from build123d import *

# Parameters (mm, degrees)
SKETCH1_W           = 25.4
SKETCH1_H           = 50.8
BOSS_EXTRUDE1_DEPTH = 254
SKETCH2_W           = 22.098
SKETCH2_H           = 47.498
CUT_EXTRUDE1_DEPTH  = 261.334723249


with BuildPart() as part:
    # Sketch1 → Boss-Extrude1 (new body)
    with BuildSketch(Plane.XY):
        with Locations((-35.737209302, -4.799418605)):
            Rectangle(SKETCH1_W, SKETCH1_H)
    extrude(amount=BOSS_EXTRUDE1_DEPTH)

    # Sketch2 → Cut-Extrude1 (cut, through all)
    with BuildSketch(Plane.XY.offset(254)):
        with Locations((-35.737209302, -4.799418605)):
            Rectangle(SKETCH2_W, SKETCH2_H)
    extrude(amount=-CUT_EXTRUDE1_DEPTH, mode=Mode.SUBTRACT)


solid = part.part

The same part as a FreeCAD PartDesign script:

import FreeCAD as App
import Part
import Sketcher
from FreeCAD import Vector
Q = App.Units.Quantity


def add_polygon(sketch, points):
    """Adds a closed chain of lines whose ends are joined by coincident constraints."""
    first, n = sketch.GeometryCount, len(points)
    for a, b in zip(points, points[1:] + points[:1]):
        sketch.addGeometry(Part.LineSegment(App.Vector(*a, 0), App.Vector(*b, 0)), False)
    for i in range(n):
        sketch.addConstraint(Sketcher.Constraint("Coincident", first + i, 2, first + (i + 1) % n, 1))

doc = App.newDocument("Part")
body = doc.addObject("PartDesign::Body", "Body")

# Sketch on XY plane
sketch1 = doc.addObject("Sketcher::SketchObject", "Sketch")
body.addObject(sketch1)
sketch1.AttachmentSupport = (doc.XY_Plane, [""])
sketch1.MapMode = "FlatFace"
add_polygon(sketch1, [(-48, 21), (-48, -30), (-23, -30), (-23, 21)])  # lines 0-3
sketch1.addConstraint([
    Sketcher.Constraint("Vertical", 0),
    Sketcher.Constraint("Horizontal", 1),
    Sketcher.Constraint("Vertical", 2),
    Sketcher.Constraint("Horizontal", 3),
    Sketcher.Constraint("DistanceX", 1, 1, 1, 2, Q("1 in")),
    Sketcher.Constraint("DistanceY", 0, 2, 0, 1, Q("2 in")),
    Sketcher.Constraint("DistanceX", 0, 2, -1, 1, 48.437209),
    Sketcher.Constraint("DistanceY", 0, 2, -1, 1, 30.199419),
])
pad1 = doc.addObject("PartDesign::Pad", "Pad")
body.addObject(pad1)
pad1.Profile = sketch1
pad1.Length = Q("10 in")

# Sketch on XY plane
sketch2 = doc.addObject("Sketcher::SketchObject", "Sketch001")
body.addObject(sketch2)
sketch2.AttachmentSupport = (doc.XY_Plane, [""])
sketch2.MapMode = "FlatFace"
sketch2.AttachmentOffset = App.Placement(Vector(0, 0, 10 * 25.4), App.Rotation())
add_polygon(sketch2, [(-47, 19), (-47, -29), (-25, -29), (-25, 19)])  # lines 0-3
sketch2.addConstraint([
    Sketcher.Constraint("Vertical", 0),
    Sketcher.Constraint("Horizontal", 1),
    Sketcher.Constraint("Vertical", 2),
    Sketcher.Constraint("Horizontal", 3),
    Sketcher.Constraint("DistanceX", 1, 1, 1, 2, Q("0.87 in")),
    Sketcher.Constraint("DistanceY", 0, 2, 0, 1, Q("1.87 in")),
    Sketcher.Constraint("DistanceX", 0, 2, -1, 1, 46.786209),
    Sketcher.Constraint("DistanceY", 0, 2, -1, 1, 28.548419),
])
pocket1 = doc.addObject("PartDesign::Pocket", "Pocket")
body.addObject(pocket1)
pocket1.Profile = sketch2
pocket1.Type = "ThroughAll"

doc.recompute()
